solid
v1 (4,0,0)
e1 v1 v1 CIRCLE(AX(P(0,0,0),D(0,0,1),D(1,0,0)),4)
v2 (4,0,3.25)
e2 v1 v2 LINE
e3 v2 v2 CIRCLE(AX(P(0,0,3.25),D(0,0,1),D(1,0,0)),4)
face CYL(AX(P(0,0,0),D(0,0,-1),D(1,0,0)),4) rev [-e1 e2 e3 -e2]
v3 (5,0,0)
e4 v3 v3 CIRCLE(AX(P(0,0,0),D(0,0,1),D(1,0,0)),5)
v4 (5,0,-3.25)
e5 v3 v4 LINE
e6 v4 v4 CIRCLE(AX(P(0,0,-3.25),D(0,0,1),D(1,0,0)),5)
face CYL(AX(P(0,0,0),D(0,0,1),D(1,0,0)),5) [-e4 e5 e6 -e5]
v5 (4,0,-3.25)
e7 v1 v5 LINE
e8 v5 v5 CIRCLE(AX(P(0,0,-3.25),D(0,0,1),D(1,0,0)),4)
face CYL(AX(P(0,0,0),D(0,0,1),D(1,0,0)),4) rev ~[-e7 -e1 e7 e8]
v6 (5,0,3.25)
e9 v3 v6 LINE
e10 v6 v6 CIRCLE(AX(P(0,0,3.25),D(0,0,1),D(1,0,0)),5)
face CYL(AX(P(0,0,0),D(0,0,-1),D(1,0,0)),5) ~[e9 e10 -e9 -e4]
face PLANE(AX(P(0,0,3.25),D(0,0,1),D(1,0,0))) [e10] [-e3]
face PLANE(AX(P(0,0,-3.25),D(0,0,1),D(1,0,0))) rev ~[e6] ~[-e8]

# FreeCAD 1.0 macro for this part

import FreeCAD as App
import Part
import Sketcher
from FreeCAD import Vector

doc = App.newDocument("Part")
body = doc.addObject("PartDesign::Body", "Body")

# Sketch on XY plane
sketch1 = body.newObject("Sketcher::SketchObject", "Sketch")
sketch1.AttachmentSupport = (doc.getObject("XY_Plane"), [""])
sketch1.MapMode = "FlatFace"
sketch1.addGeometry([
    Part.Circle(Vector(0, 0, 0), Vector(0, 0, 1), 5),
    Part.Circle(Vector(0, 0, 0), Vector(0, 0, 1), 4),
], False)
sketch1.addConstraint([
    Sketcher.Constraint("Coincident", 0, 3, -1, 1),
    Sketcher.Constraint("Coincident", 1, 3, -1, 1),
    Sketcher.Constraint("Diameter", 0, 10.0),
    Sketcher.Constraint("Diameter", 1, 8.0),
])
pad1 = body.newObject("PartDesign::Pad", "Pad")
pad1.Profile = sketch1
pad1.Length = 6.5
pad1.Midplane = True

doc.recompute()
